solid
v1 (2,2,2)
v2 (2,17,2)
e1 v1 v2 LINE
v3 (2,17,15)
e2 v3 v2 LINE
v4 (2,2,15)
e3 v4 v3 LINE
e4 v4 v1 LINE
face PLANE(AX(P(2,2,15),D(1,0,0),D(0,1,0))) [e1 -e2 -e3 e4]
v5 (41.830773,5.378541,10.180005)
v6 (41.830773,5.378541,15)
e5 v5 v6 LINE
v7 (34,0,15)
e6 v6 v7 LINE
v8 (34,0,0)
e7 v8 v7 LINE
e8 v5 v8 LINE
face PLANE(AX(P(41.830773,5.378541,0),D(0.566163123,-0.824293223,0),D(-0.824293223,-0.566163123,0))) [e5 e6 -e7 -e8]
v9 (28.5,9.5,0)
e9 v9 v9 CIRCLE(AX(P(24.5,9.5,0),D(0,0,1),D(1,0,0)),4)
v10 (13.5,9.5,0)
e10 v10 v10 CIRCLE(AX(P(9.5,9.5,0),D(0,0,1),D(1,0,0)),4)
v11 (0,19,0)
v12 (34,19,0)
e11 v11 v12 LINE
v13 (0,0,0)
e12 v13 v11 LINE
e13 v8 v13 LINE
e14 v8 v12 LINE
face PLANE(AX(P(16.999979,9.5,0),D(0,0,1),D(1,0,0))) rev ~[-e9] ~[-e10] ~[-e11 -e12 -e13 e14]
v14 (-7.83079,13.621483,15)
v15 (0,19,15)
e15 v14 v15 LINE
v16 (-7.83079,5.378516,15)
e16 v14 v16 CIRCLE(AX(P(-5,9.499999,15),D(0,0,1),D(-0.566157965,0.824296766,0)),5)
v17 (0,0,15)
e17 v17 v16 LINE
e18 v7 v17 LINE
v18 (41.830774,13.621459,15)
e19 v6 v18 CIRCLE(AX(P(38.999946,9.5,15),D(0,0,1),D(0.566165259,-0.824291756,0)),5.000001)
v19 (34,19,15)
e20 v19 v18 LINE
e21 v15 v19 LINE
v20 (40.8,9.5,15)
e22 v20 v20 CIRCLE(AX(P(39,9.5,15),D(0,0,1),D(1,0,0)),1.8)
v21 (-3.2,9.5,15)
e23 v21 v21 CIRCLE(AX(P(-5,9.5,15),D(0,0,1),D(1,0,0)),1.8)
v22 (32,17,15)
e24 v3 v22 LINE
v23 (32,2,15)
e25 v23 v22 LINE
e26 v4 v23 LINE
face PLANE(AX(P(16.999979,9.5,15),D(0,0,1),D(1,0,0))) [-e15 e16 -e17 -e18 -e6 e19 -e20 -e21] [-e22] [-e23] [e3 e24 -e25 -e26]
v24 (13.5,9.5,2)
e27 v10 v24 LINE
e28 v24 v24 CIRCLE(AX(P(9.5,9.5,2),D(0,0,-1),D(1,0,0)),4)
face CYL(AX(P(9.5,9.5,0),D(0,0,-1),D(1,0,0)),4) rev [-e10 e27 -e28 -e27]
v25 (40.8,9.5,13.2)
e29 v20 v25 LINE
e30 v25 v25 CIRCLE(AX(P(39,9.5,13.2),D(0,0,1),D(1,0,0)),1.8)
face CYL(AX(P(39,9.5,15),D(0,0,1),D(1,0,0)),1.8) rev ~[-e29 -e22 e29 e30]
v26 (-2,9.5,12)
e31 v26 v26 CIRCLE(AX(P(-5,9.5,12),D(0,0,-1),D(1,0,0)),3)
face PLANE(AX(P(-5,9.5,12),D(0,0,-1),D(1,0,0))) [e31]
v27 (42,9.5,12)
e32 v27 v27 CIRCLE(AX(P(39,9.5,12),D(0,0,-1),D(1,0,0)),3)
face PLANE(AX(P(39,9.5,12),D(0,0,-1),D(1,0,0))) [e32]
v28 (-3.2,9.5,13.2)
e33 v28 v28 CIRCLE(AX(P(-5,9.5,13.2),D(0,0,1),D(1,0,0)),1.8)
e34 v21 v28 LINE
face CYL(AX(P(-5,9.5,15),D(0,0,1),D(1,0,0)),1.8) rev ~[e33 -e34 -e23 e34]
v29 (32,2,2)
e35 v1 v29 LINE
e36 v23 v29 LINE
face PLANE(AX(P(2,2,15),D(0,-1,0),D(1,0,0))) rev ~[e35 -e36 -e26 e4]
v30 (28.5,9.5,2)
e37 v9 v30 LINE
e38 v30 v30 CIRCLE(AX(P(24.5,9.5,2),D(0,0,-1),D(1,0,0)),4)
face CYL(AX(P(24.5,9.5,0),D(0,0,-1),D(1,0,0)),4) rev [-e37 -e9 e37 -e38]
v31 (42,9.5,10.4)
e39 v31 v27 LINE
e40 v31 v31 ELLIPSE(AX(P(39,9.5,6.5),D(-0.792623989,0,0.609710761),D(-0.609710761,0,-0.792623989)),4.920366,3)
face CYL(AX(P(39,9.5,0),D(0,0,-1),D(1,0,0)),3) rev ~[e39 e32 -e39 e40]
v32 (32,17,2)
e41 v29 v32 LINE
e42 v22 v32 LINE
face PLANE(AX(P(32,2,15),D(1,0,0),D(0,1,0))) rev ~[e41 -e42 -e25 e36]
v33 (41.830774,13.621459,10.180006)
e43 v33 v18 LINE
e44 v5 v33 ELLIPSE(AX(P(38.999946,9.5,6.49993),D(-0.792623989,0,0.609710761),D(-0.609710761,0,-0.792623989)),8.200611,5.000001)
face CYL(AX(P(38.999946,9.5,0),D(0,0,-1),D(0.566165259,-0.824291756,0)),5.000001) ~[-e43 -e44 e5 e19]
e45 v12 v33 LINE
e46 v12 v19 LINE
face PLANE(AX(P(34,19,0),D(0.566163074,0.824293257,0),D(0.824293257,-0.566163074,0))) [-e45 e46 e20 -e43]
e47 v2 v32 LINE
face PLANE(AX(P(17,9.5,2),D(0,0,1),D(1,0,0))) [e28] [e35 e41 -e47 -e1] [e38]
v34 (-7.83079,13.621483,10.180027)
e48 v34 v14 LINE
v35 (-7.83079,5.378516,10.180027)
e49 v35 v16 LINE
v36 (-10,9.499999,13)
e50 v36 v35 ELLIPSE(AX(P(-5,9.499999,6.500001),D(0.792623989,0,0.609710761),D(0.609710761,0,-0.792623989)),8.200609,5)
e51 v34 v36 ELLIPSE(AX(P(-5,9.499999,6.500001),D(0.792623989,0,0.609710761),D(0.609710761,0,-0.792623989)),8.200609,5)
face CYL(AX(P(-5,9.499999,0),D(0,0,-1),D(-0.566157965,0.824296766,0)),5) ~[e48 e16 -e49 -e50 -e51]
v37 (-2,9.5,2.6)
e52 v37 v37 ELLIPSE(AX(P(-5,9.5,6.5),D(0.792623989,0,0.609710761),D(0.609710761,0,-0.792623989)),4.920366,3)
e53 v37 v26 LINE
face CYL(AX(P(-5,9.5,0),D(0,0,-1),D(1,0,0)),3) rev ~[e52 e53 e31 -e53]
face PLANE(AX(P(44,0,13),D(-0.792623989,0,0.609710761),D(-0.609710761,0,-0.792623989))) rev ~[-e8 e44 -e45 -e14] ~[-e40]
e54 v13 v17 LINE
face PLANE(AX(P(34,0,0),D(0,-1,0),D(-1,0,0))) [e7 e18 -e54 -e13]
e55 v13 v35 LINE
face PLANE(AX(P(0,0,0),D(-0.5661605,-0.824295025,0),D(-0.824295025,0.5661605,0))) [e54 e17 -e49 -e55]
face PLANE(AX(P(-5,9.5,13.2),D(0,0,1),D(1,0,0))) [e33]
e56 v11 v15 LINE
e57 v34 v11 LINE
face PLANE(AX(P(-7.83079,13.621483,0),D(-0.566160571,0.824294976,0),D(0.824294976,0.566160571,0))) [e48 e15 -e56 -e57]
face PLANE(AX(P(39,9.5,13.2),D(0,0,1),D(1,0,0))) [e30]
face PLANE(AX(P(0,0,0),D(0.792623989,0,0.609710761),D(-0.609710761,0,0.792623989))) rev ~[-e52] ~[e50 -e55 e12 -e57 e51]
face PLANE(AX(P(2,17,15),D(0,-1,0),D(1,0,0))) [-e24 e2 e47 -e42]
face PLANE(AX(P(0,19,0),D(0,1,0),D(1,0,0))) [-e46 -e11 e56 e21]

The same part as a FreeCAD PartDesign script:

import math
import FreeCAD as App
import Part
import Sketcher
from FreeCAD import Vector
Q = App.Units.Quantity


def add_polygon(sketch, points):
    """Adds a closed chain of lines whose ends are joined by coincident constraints."""
    first, n = sketch.GeometryCount, len(points)
    for a, b in zip(points, points[1:] + points[:1]):
        sketch.addGeometry(Part.LineSegment(App.Vector(*a, 0), App.Vector(*b, 0)), False)
    for i in range(n):
        sketch.addConstraint(Sketcher.Constraint("Coincident", first + i, 2, first + (i + 1) % n, 1))

doc = App.newDocument("Part")
body = doc.addObject("PartDesign::Body", "Body")

sketch1 = doc.addObject("Sketcher::SketchObject", "Sketch")
body.addObject(sketch1)
sketch1.AttachmentSupport = (doc.XY_Plane, [""])
sketch1.MapMode = "FlatFace"
sketch1.addGeometry(Part.ArcOfCircle(Part.Circle(Vector(-5, 9.499999, 0), Vector(0, 0, 1), 5), math.radians(124.482741), math.radians(235.517259)), False)
sketch1.addGeometry(Part.LineSegment(Vector(-7.83079, 5.378516, 0), Vector(0, 0, 0)), False)
sketch1.addGeometry(Part.LineSegment(Vector(0, 0, 0), Vector(34, 0, 0)), False)
sketch1.addGeometry(Part.LineSegment(Vector(34, 0, 0), Vector(41.830773, 5.378541, 0)), False)
sketch1.addGeometry(Part.ArcOfCircle(Part.Circle(Vector(38.999946, 9.5, 0), Vector(0, 0, 1), 5.000001), math.radians(-55.516752), math.radians(55.516738)), False)
sketch1.addGeometry(Part.LineSegment(Vector(41.830774, 13.621459, 0), Vector(34, 19, 0)), False)
sketch1.addGeometry(Part.LineSegment(Vector(34, 19, 0), Vector(0, 19, 0)), False)
sketch1.addGeometry(Part.LineSegment(Vector(0, 19, 0), Vector(-7.83079, 13.621483, 0)), False)
sketch1.addGeometry(Part.Circle(Vector(9.5, 9.5, 0), Vector(0, 0, 1), 4), False)
sketch1.addGeometry(Part.Circle(Vector(24.5, 9.5, 0), Vector(0, 0, 1), 4), False)
sketch1.addConstraint(Sketcher.Constraint("Coincident", 0, 2, 1, 1))
sketch1.addConstraint(Sketcher.Constraint("Coincident", 1, 2, 2, 1))
sketch1.addConstraint(Sketcher.Constraint("Coincident", 2, 2, 3, 1))
sketch1.addConstraint(Sketcher.Constraint("Coincident", 3, 2, 4, 1))
sketch1.addConstraint(Sketcher.Constraint("Coincident", 4, 2, 5, 1))
sketch1.addConstraint(Sketcher.Constraint("Coincident", 5, 2, 6, 1))
sketch1.addConstraint(Sketcher.Constraint("Coincident", 6, 2, 7, 1))
sketch1.addConstraint(Sketcher.Constraint("Coincident", 7, 2, 0, 1))
sketch1.addConstraint(Sketcher.Constraint("Horizontal", 2))
sketch1.addConstraint(Sketcher.Constraint("Horizontal", 6))
sketch1.addConstraint(Sketcher.Constraint("Coincident", 1, 2, -1, 1))
sketch1.addConstraint(Sketcher.Constraint("Equal", 0, 4))
sketch1.addConstraint(Sketcher.Constraint("Equal", 8, 9))
sketch1.addConstraint(Sketcher.Constraint("PointOnObject", 6, 2, -2))
sketch1.addConstraint(Sketcher.Constraint("Horizontal", 0, 3, 4, 3))
sketch1.addConstraint(Sketcher.Constraint("Horizontal", 4, 3, 8, 3))
sketch1.addConstraint(Sketcher.Constraint("Horizontal", 8, 3, 9, 3))
sketch1.addConstraint(Sketcher.Constraint("Vertical", 3, 2, 4, 2))
sketch1.addConstraint(Sketcher.Constraint("Vertical", 2, 2, 5, 2))
sketch1.addConstraint(Sketcher.Constraint("Vertical", 0, 2, 7, 2))
sketch1.addConstraint(Sketcher.Constraint("Equal", 1, 3))
sketch1.addConstraint(Sketcher.Constraint("Equal", 3, 5))
sketch1.addConstraint(Sketcher.Constraint("Diameter", 8, Q("8 mm")))
sketch1.addConstraint(Sketcher.Constraint("Radius", 0, Q("5 mm")))
sketch1.addConstraint(Sketcher.Constraint("DistanceX", 2, 1, 2, 2, Q("34 mm")))
sketch1.addConstraint(Sketcher.Constraint("DistanceX", 0, 3, -1, 1, Q("5 mm")))
sketch1.addConstraint(Sketcher.Constraint("DistanceY", -1, 1, 5, 2, Q("19 mm")))
sketch1.addConstraint(Sketcher.Constraint("DistanceX", 8, 3, 9, 3, Q("15 mm")))
sketch1.addConstraint(Sketcher.Constraint("DistanceX", -1, 1, 8, 3, Q("9.5 mm")))
sketch1.addConstraint(Sketcher.Constraint("DistanceX", 0, 2, -1, 1, Q("7.83079 mm")))
sketch1.addConstraint(Sketcher.Constraint("DistanceY", -1, 1, 3, 2, Q("5.378541 mm")))
pad1 = doc.addObject("PartDesign::Pad", "Pad")
body.addObject(pad1)
pad1.Profile = sketch1
pad1.Length = 15

sketch2 = doc.addObject("Sketcher::SketchObject", "Sketch001")
body.addObject(sketch2)
sketch2.AttachmentSupport = (doc.XY_Plane, [""])
sketch2.MapMode = "FlatFace"
sketch2.addGeometry(Part.Circle(Vector(-5, 9.5, 0), Vector(0, 0, 1), 3), False)
sketch2.addGeometry(Part.Circle(Vector(39, 9.5, 0), Vector(0, 0, 1), 3), False)
sketch2.addConstraint(Sketcher.Constraint("Equal", 0, 1))
sketch2.addConstraint(Sketcher.Constraint("Horizontal", 0, 3, 1, 3))
sketch2.addConstraint(Sketcher.Constraint("Diameter", 0, Q("6 mm")))
sketch2.addConstraint(Sketcher.Constraint("DistanceX", 0, 3, -1, 1, Q("5 mm")))
sketch2.addConstraint(Sketcher.Constraint("DistanceX", -1, 1, 1, 3, Q("39 mm")))
sketch2.addConstraint(Sketcher.Constraint("DistanceY", -1, 1, 0, 3, Q("9.5 mm")))
pocket1 = doc.addObject("PartDesign::Pocket", "Pocket")
body.addObject(pocket1)
pocket1.Profile = sketch2
pocket1.Length = 12
pocket1.Reversed = True

sketch3 = doc.addObject("Sketcher::SketchObject", "Sketch002")
body.addObject(sketch3)
sketch3.AttachmentSupport = (doc.XY_Plane, [""])
sketch3.MapMode = "FlatFace"
sketch3.AttachmentOffset = App.Placement(Vector(0, 0, 15), App.Rotation())
sketch3.addGeometry(Part.Circle(Vector(-5, 9.5, 0), Vector(0, 0, 1), 1.8), False)
sketch3.addGeometry(Part.Circle(Vector(39, 9.5, 0), Vector(0, 0, 1), 1.8), False)
sketch3.addConstraint(Sketcher.Constraint("Equal", 0, 1))
sketch3.addConstraint(Sketcher.Constraint("Horizontal", 0, 3, 1, 3))
sketch3.addConstraint(Sketcher.Constraint("Diameter", 0, Q("3.6 mm")))
sketch3.addConstraint(Sketcher.Constraint("DistanceX", 0, 3, -1, 1, Q("5 mm")))
sketch3.addConstraint(Sketcher.Constraint("DistanceX", -1, 1, 1, 3, Q("39 mm")))
sketch3.addConstraint(Sketcher.Constraint("DistanceY", -1, 1, 0, 3, Q("9.5 mm")))
pocket2 = doc.addObject("PartDesign::Pocket", "Pocket001")
body.addObject(pocket2)
pocket2.Profile = sketch3
pocket2.Length = 1.8

sketch4 = doc.addObject("Sketcher::SketchObject", "Sketch003")
body.addObject(sketch4)
sketch4.AttachmentSupport = (doc.XY_Plane, [""])
sketch4.MapMode = "FlatFace"
sketch4.AttachmentOffset = App.Placement(Vector(0, 0, 15), App.Rotation())
add_polygon(sketch4, [(2, 17), (2, 2), (32, 2), (32, 17)])
sketch4.addConstraint(Sketcher.Constraint("Vertical", 0))
sketch4.addConstraint(Sketcher.Constraint("Horizontal", 1))
sketch4.addConstraint(Sketcher.Constraint("Vertical", 2))
sketch4.addConstraint(Sketcher.Constraint("Horizontal", 3))
sketch4.addConstraint(Sketcher.Constraint("DistanceX", 1, 1, 1, 2, Q("30 mm")))
sketch4.addConstraint(Sketcher.Constraint("DistanceY", 0, 2, 0, 1, Q("15 mm")))
sketch4.addConstraint(Sketcher.Constraint("DistanceX", -1, 1, 0, 2, Q("2 mm")))
sketch4.addConstraint(Sketcher.Constraint("DistanceY", -1, 1, 0, 2, Q("2 mm")))
pocket3 = doc.addObject("PartDesign::Pocket", "Pocket002")
body.addObject(pocket3)
pocket3.Profile = sketch4
pocket3.Length = 13

sketch5 = doc.addObject("Sketcher::SketchObject", "Sketch004")
body.addObject(sketch5)
sketch5.AttachmentSupport = (doc.XZ_Plane, [""])
sketch5.MapMode = "FlatFace"
add_polygon(sketch5, [(-11, 13), (-11, -2), (45, -2), (45, 13), (44, 13), (34, 0), (0, 0), (-10, 13)])
sketch5.addConstraint(Sketcher.Constraint("Vertical", 0))
sketch5.addConstraint(Sketcher.Constraint("Horizontal", 1))
sketch5.addConstraint(Sketcher.Constraint("Vertical", 2))
sketch5.addConstraint(Sketcher.Constraint("Horizontal", 3))
sketch5.addConstraint(Sketcher.Constraint("Horizontal", 5))
sketch5.addConstraint(Sketcher.Constraint("Horizontal", 7))
sketch5.addConstraint(Sketcher.Constraint("Coincident", 5, 2, -1, 1))
sketch5.addConstraint(Sketcher.Constraint("Horizontal", 3, 2, 6, 2))
sketch5.addConstraint(Sketcher.Constraint("Equal", 3, 7))
sketch5.addConstraint(Sketcher.Constraint("Equal", 4, 6))
sketch5.addConstraint(Sketcher.Constraint("DistanceX", 1, 1, 1, 2, Q("56 mm")))
sketch5.addConstraint(Sketcher.Constraint("DistanceX", 3, 2, 3, 1, Q("1 mm")))
sketch5.addConstraint(Sketcher.Constraint("DistanceX", 5, 2, 5, 1, Q("34 mm")))
sketch5.addConstraint(Sketcher.Constraint("DistanceY", 0, 2, 0, 1, Q("15 mm")))
sketch5.addConstraint(Sketcher.Constraint("DistanceY", 0, 2, -1, 1, Q("2 mm")))
pocket4 = doc.addObject("PartDesign::Pocket", "Pocket003")
body.addObject(pocket4)
pocket4.Profile = sketch5
pocket4.Length = 19

doc.recompute()
